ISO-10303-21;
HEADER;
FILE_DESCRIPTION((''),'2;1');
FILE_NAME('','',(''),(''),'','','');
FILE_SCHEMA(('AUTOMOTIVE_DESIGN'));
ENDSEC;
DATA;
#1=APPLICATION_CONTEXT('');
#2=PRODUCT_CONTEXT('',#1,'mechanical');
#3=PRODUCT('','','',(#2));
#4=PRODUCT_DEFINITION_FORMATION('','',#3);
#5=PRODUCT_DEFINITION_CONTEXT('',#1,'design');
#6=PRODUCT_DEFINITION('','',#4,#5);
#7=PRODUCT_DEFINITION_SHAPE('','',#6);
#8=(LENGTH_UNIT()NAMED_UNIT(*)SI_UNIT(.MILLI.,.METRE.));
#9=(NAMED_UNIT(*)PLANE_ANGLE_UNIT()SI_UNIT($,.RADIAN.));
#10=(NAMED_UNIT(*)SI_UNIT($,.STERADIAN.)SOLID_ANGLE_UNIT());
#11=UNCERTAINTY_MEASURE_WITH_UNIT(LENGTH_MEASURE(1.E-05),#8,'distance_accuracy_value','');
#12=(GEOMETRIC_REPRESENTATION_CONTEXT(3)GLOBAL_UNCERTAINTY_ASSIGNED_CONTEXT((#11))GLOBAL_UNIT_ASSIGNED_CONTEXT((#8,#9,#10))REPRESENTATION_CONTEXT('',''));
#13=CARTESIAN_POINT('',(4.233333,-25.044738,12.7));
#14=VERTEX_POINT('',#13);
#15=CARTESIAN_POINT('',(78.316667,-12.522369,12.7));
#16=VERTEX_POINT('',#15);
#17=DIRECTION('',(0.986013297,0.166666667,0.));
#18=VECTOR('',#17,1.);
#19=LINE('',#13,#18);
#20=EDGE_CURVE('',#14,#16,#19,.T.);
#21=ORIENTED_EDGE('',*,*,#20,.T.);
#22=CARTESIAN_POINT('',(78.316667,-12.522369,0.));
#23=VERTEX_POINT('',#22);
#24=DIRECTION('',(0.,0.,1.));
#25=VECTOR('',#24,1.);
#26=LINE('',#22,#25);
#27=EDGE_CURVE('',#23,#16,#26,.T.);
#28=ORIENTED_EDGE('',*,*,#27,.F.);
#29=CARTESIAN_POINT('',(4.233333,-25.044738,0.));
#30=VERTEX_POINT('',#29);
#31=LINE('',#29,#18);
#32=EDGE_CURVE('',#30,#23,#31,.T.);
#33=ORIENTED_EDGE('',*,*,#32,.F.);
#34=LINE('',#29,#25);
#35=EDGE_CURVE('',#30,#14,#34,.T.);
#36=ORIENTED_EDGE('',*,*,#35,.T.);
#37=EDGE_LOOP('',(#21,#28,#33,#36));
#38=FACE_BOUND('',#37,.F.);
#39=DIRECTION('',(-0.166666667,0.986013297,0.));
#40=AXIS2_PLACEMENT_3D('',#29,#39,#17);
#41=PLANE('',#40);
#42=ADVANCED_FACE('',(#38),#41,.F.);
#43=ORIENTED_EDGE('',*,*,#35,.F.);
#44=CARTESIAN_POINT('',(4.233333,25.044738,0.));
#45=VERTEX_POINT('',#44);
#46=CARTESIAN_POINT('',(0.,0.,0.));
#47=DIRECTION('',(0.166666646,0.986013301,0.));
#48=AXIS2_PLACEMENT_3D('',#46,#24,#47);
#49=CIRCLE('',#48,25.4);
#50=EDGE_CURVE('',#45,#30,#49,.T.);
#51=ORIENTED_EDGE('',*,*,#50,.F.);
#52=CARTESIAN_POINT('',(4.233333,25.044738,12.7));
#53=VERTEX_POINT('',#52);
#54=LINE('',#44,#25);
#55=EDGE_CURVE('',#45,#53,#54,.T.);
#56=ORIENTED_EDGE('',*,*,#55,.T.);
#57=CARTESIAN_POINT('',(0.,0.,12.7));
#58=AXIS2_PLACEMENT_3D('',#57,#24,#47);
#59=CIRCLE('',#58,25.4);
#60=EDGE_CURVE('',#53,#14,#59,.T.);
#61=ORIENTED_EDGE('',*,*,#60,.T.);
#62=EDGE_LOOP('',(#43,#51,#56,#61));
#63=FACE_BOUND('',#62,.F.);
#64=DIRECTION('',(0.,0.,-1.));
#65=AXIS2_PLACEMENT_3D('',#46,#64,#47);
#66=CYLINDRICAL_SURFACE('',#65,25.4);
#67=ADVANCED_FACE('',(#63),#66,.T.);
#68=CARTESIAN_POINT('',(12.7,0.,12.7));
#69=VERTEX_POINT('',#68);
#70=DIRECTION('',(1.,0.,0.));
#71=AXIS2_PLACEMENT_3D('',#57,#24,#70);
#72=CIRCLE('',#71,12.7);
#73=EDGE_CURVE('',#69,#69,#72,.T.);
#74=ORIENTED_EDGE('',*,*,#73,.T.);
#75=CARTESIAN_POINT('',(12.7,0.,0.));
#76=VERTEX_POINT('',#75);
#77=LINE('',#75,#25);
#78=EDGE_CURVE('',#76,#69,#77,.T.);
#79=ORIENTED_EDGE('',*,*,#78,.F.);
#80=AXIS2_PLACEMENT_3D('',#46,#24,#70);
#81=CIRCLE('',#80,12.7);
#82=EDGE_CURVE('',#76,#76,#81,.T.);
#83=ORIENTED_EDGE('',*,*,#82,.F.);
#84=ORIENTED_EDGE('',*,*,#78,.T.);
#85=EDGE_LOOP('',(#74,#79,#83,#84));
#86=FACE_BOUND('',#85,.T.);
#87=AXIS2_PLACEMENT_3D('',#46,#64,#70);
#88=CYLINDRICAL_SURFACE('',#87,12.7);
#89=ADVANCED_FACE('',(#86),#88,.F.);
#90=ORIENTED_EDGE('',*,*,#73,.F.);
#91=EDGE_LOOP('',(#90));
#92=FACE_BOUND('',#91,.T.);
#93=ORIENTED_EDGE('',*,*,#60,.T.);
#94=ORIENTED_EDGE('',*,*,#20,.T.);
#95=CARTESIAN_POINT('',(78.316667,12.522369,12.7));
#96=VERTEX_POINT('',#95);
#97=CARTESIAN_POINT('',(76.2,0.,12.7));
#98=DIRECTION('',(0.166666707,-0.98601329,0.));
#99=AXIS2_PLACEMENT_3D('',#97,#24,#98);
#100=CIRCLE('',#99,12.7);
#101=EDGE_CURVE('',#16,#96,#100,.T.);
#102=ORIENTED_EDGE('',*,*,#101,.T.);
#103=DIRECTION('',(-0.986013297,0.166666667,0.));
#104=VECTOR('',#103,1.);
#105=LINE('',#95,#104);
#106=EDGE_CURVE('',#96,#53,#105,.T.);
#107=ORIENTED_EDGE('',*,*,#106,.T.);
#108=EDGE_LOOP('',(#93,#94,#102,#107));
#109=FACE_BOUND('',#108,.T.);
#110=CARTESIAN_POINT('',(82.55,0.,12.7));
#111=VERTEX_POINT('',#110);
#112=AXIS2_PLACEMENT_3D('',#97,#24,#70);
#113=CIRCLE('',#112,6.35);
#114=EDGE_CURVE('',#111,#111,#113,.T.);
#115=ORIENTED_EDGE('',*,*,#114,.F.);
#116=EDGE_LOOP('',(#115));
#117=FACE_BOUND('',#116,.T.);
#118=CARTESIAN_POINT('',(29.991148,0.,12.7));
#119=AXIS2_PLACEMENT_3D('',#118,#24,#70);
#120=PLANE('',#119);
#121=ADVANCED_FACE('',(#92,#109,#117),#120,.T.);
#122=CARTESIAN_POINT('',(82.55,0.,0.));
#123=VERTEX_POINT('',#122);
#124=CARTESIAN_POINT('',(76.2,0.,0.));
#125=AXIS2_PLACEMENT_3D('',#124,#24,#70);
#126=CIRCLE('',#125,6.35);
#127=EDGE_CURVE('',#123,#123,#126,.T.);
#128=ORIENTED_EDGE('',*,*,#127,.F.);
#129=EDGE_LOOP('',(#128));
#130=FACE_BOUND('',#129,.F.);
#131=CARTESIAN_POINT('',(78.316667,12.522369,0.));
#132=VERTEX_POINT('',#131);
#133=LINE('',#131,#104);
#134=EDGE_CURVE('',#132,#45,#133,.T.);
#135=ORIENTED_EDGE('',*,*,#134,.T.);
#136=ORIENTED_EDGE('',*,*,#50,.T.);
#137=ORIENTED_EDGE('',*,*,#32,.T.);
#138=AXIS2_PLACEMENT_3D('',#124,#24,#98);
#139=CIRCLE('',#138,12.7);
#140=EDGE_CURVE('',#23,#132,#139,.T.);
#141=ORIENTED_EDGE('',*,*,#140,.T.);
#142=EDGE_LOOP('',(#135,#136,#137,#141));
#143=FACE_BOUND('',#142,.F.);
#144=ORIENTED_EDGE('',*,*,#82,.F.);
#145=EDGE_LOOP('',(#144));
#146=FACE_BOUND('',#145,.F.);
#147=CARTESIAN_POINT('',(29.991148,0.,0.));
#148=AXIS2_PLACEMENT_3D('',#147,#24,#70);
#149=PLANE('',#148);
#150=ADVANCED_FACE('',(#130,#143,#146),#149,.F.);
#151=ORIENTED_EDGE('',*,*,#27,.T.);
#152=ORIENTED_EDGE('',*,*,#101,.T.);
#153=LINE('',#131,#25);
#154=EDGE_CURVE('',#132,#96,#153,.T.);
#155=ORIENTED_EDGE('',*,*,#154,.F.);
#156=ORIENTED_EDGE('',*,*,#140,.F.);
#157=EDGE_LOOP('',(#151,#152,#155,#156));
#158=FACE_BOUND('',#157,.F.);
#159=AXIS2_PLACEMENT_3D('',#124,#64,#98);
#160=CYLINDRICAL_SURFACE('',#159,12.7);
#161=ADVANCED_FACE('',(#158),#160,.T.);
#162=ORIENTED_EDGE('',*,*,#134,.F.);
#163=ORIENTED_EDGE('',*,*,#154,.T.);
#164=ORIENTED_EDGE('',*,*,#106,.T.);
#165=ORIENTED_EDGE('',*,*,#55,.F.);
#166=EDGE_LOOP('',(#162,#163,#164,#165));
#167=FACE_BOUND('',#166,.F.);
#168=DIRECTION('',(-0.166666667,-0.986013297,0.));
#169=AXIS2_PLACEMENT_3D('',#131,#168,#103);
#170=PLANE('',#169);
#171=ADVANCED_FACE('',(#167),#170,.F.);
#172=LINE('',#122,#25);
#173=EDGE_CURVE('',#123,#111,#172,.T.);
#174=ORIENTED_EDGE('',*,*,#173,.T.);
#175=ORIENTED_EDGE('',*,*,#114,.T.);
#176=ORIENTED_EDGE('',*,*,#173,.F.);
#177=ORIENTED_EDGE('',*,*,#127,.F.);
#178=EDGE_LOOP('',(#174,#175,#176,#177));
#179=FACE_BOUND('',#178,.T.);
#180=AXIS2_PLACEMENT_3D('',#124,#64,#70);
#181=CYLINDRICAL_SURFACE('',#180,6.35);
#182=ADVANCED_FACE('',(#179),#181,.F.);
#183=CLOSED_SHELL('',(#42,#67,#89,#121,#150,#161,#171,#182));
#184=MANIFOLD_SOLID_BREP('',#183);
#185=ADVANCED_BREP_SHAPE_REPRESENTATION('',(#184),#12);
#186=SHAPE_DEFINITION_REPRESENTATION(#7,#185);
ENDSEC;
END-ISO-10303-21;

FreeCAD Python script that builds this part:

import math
import FreeCAD as App
import Part
import Sketcher

V = App.Vector
Q = App.Units.Quantity

doc = App.newDocument("Part")
body = doc.addObject("PartDesign::Body", "Body")

# Sketch on XY plane
sketch1 = body.newObject("Sketcher::SketchObject", "Sketch")
sketch1.AttachmentSupport = (doc.getObject("XY_Plane"), [""])
sketch1.MapMode = "FlatFace"
sketch1.addGeometry(Part.LineSegment(V(78.316667, 12.522369, 0), V(4.233333, 25.044738, 0)), False)
sketch1.addGeometry(Part.ArcOfCircle(Part.Circle(V(0, 0, 0), V(0, 0, 1), 25.4), math.radians(80.405933), math.radians(279.594067)), False)
sketch1.addGeometry(Part.LineSegment(V(4.233333, -25.044738, 0), V(78.316667, -12.522369, 0)), False)
sketch1.addGeometry(Part.ArcOfCircle(Part.Circle(V(76.2, 0, 0), V(0, 0, 1), 12.7), math.radians(-80.405929), math.radians(80.405929)), False)
sketch1.addGeometry(Part.Circle(V(0, 0, 0), V(0, 0, 1), 12.7), False)
sketch1.addGeometry(Part.Circle(V(76.2, 0, 0), V(0, 0, 1), 6.35), False)
sketch1.addConstraint(Sketcher.Constraint("Tangent", 0, 2, 1, 1))
sketch1.addConstraint(Sketcher.Constraint("Tangent", 1, 2, 2, 1))
sketch1.addConstraint(Sketcher.Constraint("Tangent", 2, 2, 3, 1))
sketch1.addConstraint(Sketcher.Constraint("Tangent", 3, 2, 0, 1))
sketch1.addConstraint(Sketcher.Constraint("Coincident", 1, 3, -1, 1))
sketch1.addConstraint(Sketcher.Constraint("Coincident", 4, 3, -1, 1))
sketch1.addConstraint(Sketcher.Constraint("Coincident", 5, 3, 3, 3))
sketch1.addConstraint(Sketcher.Constraint("Equal", 3, 4))
sketch1.addConstraint(Sketcher.Constraint("PointOnObject", 3, 3, -1))
sketch1.addConstraint(Sketcher.Constraint("Diameter", 4, Q("1 in")))
sketch1.addConstraint(Sketcher.Constraint("Radius", 1, Q("1 in")))
sketch1.addConstraint(Sketcher.Constraint("Diameter", 5, Q("0.5 in")))
sketch1.addConstraint(Sketcher.Constraint("DistanceX", -1, 1, 3, 3, Q("3 in")))
pad1 = body.newObject("PartDesign::Pad", "Pad")
pad1.Profile = sketch1
pad1.Length = Q("0.5 in")

doc.recompute()
